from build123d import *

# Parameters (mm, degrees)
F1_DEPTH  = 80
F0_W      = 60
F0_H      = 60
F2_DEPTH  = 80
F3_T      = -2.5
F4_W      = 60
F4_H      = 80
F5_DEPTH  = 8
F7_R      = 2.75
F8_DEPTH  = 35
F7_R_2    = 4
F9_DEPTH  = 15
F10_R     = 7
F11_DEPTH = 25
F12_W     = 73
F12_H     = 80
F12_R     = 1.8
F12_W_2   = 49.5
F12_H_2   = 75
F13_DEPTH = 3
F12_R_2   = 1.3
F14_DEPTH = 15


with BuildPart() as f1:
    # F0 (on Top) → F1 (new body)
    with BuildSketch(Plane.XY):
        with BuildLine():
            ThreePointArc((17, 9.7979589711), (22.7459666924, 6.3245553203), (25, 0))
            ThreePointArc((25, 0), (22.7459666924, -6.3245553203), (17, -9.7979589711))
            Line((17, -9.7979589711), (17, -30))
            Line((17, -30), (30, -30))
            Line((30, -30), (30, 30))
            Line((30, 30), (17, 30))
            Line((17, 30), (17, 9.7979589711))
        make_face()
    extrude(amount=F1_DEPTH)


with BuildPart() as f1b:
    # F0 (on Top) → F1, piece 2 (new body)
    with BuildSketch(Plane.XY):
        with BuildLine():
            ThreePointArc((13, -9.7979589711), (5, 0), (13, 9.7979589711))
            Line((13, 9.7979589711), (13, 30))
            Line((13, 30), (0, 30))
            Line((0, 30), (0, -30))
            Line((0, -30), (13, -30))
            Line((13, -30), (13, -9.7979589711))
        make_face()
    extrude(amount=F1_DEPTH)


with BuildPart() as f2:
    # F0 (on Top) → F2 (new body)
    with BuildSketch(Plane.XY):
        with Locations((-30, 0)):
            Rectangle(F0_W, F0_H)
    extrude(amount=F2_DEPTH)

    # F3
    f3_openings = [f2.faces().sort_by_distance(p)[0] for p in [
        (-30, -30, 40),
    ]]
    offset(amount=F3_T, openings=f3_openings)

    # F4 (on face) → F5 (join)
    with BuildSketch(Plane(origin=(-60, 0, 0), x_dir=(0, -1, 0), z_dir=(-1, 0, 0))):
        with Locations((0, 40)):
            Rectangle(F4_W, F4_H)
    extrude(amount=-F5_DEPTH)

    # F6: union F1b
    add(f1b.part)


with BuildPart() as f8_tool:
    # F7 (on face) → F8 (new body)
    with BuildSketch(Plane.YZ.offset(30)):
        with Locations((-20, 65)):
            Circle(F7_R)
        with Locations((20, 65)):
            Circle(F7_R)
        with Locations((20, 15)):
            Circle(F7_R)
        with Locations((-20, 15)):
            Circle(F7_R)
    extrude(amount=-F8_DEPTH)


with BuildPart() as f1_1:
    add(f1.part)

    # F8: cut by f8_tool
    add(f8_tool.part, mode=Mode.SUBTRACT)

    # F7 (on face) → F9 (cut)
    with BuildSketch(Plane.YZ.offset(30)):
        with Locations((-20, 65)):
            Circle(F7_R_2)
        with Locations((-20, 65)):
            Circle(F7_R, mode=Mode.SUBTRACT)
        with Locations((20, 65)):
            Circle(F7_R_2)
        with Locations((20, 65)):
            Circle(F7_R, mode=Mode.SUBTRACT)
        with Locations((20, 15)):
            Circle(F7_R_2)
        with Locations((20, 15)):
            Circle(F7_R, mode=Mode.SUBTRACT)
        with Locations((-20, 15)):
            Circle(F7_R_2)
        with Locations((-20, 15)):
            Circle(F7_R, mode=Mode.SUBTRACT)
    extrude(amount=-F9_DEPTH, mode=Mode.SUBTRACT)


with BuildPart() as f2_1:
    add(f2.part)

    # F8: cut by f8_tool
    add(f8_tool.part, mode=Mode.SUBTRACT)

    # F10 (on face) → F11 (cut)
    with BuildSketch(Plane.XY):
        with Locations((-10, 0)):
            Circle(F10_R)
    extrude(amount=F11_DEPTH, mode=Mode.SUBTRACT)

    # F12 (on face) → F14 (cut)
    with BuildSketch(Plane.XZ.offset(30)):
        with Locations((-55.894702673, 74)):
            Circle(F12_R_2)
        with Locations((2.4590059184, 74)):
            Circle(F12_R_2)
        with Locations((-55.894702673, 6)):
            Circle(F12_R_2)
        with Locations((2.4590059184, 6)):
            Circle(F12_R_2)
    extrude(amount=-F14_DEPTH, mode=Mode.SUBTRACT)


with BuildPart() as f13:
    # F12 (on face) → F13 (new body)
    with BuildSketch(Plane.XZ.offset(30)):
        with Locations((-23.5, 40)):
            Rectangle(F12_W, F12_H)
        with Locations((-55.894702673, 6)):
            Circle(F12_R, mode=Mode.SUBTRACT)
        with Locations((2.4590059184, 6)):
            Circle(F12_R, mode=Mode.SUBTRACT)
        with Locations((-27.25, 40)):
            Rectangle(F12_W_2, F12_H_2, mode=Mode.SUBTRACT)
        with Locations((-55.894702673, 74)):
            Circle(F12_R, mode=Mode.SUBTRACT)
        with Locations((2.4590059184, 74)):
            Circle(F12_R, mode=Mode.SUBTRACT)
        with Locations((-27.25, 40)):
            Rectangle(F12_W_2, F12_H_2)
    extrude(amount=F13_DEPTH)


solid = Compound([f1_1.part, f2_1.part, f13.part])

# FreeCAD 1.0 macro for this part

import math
import FreeCAD as App
import Part
import Sketcher
from FreeCAD import Vector


def faces_at(feature, points):
    """Names of the faces that lie closest to the given points."""
    faces = feature.Shape.Faces
    near = lambda p: min(range(len(faces)), key=lambda i: faces[i].distToShape(Part.Vertex(*p))[0])
    return sorted({f"Face{near(p) + 1}" for p in points})

doc = App.newDocument("Part")
body = doc.addObject("PartDesign::Body", "Body")

# Sketch on XY plane
sketch1 = body.newObject("Sketcher::SketchObject", "Sketch")
sketch1.AttachmentSupport = (doc.getObject("XY_Plane"), [""])
sketch1.MapMode = "FlatFace"
sketch1.addGeometry(Part.ArcOfCircle(Part.Circle(Vector(15, 0, 0), Vector(0, 0, 1), 10), math.radians(0), math.radians(78.463041)), False)
sketch1.addGeometry(Part.ArcOfCircle(Part.Circle(Vector(15, 0, 0), Vector(0, 0, 1), 10), math.radians(-78.463041), math.radians(0)), False)
sketch1.addGeometry(Part.LineSegment(Vector(17, -9.797959, 0), Vector(17, -30, 0)), False)
sketch1.addGeometry(Part.LineSegment(Vector(17, -30, 0), Vector(30, -30, 0)), False)
sketch1.addGeometry(Part.LineSegment(Vector(30, -30, 0), Vector(30, 30, 0)), False)
sketch1.addGeometry(Part.LineSegment(Vector(30, 30, 0), Vector(17, 30, 0)), False)
sketch1.addGeometry(Part.LineSegment(Vector(17, 30, 0), Vector(17, 9.797959, 0)), False)
sketch1.addConstraint(Sketcher.Constraint("Tangent", 0, 1, 1, 2))
sketch1.addConstraint(Sketcher.Constraint("Coincident", 1, 1, 2, 1))
sketch1.addConstraint(Sketcher.Constraint("Coincident", 2, 2, 3, 1))
sketch1.addConstraint(Sketcher.Constraint("Coincident", 3, 2, 4, 1))
sketch1.addConstraint(Sketcher.Constraint("Coincident", 4, 2, 5, 1))
sketch1.addConstraint(Sketcher.Constraint("Coincident", 5, 2, 6, 1))
sketch1.addConstraint(Sketcher.Constraint("Coincident", 6, 2, 0, 2))
sketch1.addConstraint(Sketcher.Constraint("Vertical", 2))
sketch1.addConstraint(Sketcher.Constraint("Horizontal", 3))
sketch1.addConstraint(Sketcher.Constraint("Vertical", 4))
sketch1.addConstraint(Sketcher.Constraint("Horizontal", 5))
sketch1.addConstraint(Sketcher.Constraint("Vertical", 6))
sketch1.addConstraint(Sketcher.Constraint("Equal", 0, 1))
sketch1.addConstraint(Sketcher.Constraint("Symmetric", 2, 2, 5, 2, -1))
sketch1.addConstraint(Sketcher.Constraint("PointOnObject", 0, 3, -1))
sketch1.addConstraint(Sketcher.Constraint("PointOnObject", 0, 1, -1))
sketch1.addConstraint(Sketcher.Constraint("Radius", 0, 10.0))
sketch1.addConstraint(Sketcher.Constraint("DistanceX", 3, 1, 3, 2, 13.0))
sketch1.addConstraint(Sketcher.Constraint("DistanceY", 4, 1, 4, 2, 60.0))
sketch1.addConstraint(Sketcher.Constraint("DistanceX", -1, 1, 0, 3, 15.0))
sketch1.addConstraint(Sketcher.Constraint("DistanceX", -1, 1, 1, 1, 17.0))
pad1 = body.newObject("PartDesign::Pad", "Pad")
pad1.Profile = sketch1
pad1.Length = 80
body2 = doc.addObject("PartDesign::Body", "Body001")

# Sketch on XY plane
sketch2 = body2.newObject("Sketcher::SketchObject", "Sketch001")
sketch2.AttachmentSupport = (doc.getObject("XY_Plane001"), [""])
sketch2.MapMode = "FlatFace"
sketch2.addGeometry(Part.ArcOfCircle(Part.Circle(Vector(15, 0, 0), Vector(0, 0, 1), 10), math.radians(101.536959), math.radians(258.463041)), False)
sketch2.addGeometry(Part.LineSegment(Vector(13, 9.797959, 0), Vector(13, 30, 0)), False)
sketch2.addGeometry(Part.LineSegment(Vector(13, 30, 0), Vector(0, 30, 0)), False)
sketch2.addGeometry(Part.LineSegment(Vector(0, 30, 0), Vector(0, -30, 0)), False)
sketch2.addGeometry(Part.LineSegment(Vector(0, -30, 0), Vector(13, -30, 0)), False)
sketch2.addGeometry(Part.LineSegment(Vector(13, -30, 0), Vector(13, -9.797959, 0)), False)
sketch2.addConstraint(Sketcher.Constraint("Coincident", 0, 1, 1, 1))
sketch2.addConstraint(Sketcher.Constraint("Coincident", 1, 2, 2, 1))
sketch2.addConstraint(Sketcher.Constraint("Coincident", 2, 2, 3, 1))
sketch2.addConstraint(Sketcher.Constraint("Coincident", 3, 2, 4, 1))
sketch2.addConstraint(Sketcher.Constraint("Coincident", 4, 2, 5, 1))
sketch2.addConstraint(Sketcher.Constraint("Coincident", 5, 2, 0, 2))
sketch2.addConstraint(Sketcher.Constraint("Vertical", 1))
sketch2.addConstraint(Sketcher.Constraint("Horizontal", 2))
sketch2.addConstraint(Sketcher.Constraint("Vertical", 3))
sketch2.addConstraint(Sketcher.Constraint("Horizontal", 4))
sketch2.addConstraint(Sketcher.Constraint("Vertical", 5))
sketch2.addConstraint(Sketcher.Constraint("Symmetric", 2, 2, 3, 2, -1, 1))
sketch2.addConstraint(Sketcher.Constraint("Symmetric", 0, 1, 5, 2, -1))
sketch2.addConstraint(Sketcher.Constraint("Radius", 0, 10.0))
sketch2.addConstraint(Sketcher.Constraint("DistanceX", 2, 2, 2, 1, 13.0))
sketch2.addConstraint(Sketcher.Constraint("DistanceY", 3, 2, 3, 1, 60.0))
sketch2.addConstraint(Sketcher.Constraint("DistanceX", -1, 1, 0, 3, 15.0))
pad2 = body2.newObject("PartDesign::Pad", "Pad001")
pad2.Profile = sketch2
pad2.Length = 80
body3 = doc.addObject("PartDesign::Body", "Body002")

# Sketch on XY plane
sketch3 = body3.newObject("Sketcher::SketchObject", "Sketch002")
sketch3.AttachmentSupport = (doc.getObject("XY_Plane002"), [""])
sketch3.MapMode = "FlatFace"
sketch3.addGeometry(Part.LineSegment(Vector(-60, 30, 0), Vector(-60, -30, 0)), False)
sketch3.addGeometry(Part.LineSegment(Vector(-60, -30, 0), Vector(0, -30, 0)), False)
sketch3.addGeometry(Part.LineSegment(Vector(0, -30, 0), Vector(0, 30, 0)), False)
sketch3.addGeometry(Part.LineSegment(Vector(0, 30, 0), Vector(-60, 30, 0)), False)
sketch3.addConstraint(Sketcher.Constraint("Coincident", 0, 2, 1, 1))
sketch3.addConstraint(Sketcher.Constraint("Coincident", 1, 2, 2, 1))
sketch3.addConstraint(Sketcher.Constraint("Coincident", 2, 2, 3, 1))
sketch3.addConstraint(Sketcher.Constraint("Coincident", 3, 2, 0, 1))
sketch3.addConstraint(Sketcher.Constraint("Vertical", 0))
sketch3.addConstraint(Sketcher.Constraint("Horizontal", 1))
sketch3.addConstraint(Sketcher.Constraint("Vertical", 2))
sketch3.addConstraint(Sketcher.Constraint("Horizontal", 3))
sketch3.addConstraint(Sketcher.Constraint("Symmetric", 1, 2, 2, 2, -1, 1))
sketch3.addConstraint(Sketcher.Constraint("Equal", 3, 0))
sketch3.addConstraint(Sketcher.Constraint("DistanceX", 1, 1, 1, 2, 60.0))
pad3 = body3.newObject("PartDesign::Pad", "Pad002")
pad3.Profile = sketch3
pad3.Length = 80
doc.recompute()

thickness = body3.newObject("PartDesign::Thickness", "Thickness")
thickness.Base = (pad3, faces_at(pad3, [(-30, -30, 40)]))
thickness.Value = 2.5
thickness.Reversed = True
thickness.Join = "Arc"

# Sketch on YZ plane
sketch4 = body3.newObject("Sketcher::SketchObject", "Sketch003")
sketch4.AttachmentSupport = (doc.getObject("YZ_Plane002"), [""])
sketch4.MapMode = "FlatFace"
sketch4.AttachmentOffset = App.Placement(Vector(0, 0, -60), App.Rotation())
sketch4.addGeometry(Part.LineSegment(Vector(30, 80, 0), Vector(30, 0, 0)), False)
sketch4.addGeometry(Part.LineSegment(Vector(30, 0, 0), Vector(-30, 0, 0)), False)
sketch4.addGeometry(Part.LineSegment(Vector(-30, 0, 0), Vector(-30, 80, 0)), False)
sketch4.addGeometry(Part.LineSegment(Vector(-30, 80, 0), Vector(30, 80, 0)), False)
sketch4.addConstraint(Sketcher.Constraint("Coincident", 0, 2, 1, 1))
sketch4.addConstraint(Sketcher.Constraint("Coincident", 1, 2, 2, 1))
sketch4.addConstraint(Sketcher.Constraint("Coincident", 2, 2, 3, 1))
sketch4.addConstraint(Sketcher.Constraint("Coincident", 3, 2, 0, 1))
sketch4.addConstraint(Sketcher.Constraint("Vertical", 0))
sketch4.addConstraint(Sketcher.Constraint("Horizontal", 1))
sketch4.addConstraint(Sketcher.Constraint("Vertical", 2))
sketch4.addConstraint(Sketcher.Constraint("Horizontal", 3))
sketch4.addConstraint(Sketcher.Constraint("Symmetric", 0, 2, 1, 2, -1, 1))
sketch4.addConstraint(Sketcher.Constraint("DistanceX", 1, 2, 1, 1, 60.0))
sketch4.addConstraint(Sketcher.Constraint("DistanceY", 0, 2, 0, 1, 80.0))
pad4 = body3.newObject("PartDesign::Pad", "Pad003")
pad4.Profile = sketch4
pad4.Length = 8
doc.recompute()

boolean = body3.newObject("PartDesign::Boolean", "Boolean")
boolean.Type = "Fuse"
boolean.addObjects([body2])
body4 = doc.addObject("PartDesign::Body", "Body003")
body4.AllowCompound = True

# Sketch on YZ plane
sketch5 = body4.newObject("Sketcher::SketchObject", "Sketch004")
sketch5.AttachmentSupport = (doc.getObject("YZ_Plane003"), [""])
sketch5.MapMode = "FlatFace"
sketch5.AttachmentOffset = App.Placement(Vector(0, 0, 30), App.Rotation())
sketch5.addGeometry(Part.Circle(Vector(-20, 65, 0), Vector(0, 0, 1), 2.75), False)
sketch5.addGeometry(Part.Circle(Vector(20, 65, 0), Vector(0, 0, 1), 2.75), False)
sketch5.addGeometry(Part.Circle(Vector(20, 15, 0), Vector(0, 0, 1), 2.75), False)
sketch5.addGeometry(Part.Circle(Vector(-20, 15, 0), Vector(0, 0, 1), 2.75), False)
sketch5.addConstraint(Sketcher.Constraint("Equal", 0, 1))
sketch5.addConstraint(Sketcher.Constraint("Equal", 1, 2))
sketch5.addConstraint(Sketcher.Constraint("Equal", 2, 3))
sketch5.addConstraint(Sketcher.Constraint("Symmetric", 0, 3, 1, 3, -2))
sketch5.addConstraint(Sketcher.Constraint("Symmetric", 2, 3, 3, 3, -2))
sketch5.addConstraint(Sketcher.Constraint("Vertical", 1, 3, 2, 3))
sketch5.addConstraint(Sketcher.Constraint("Diameter", 0, 5.5))
sketch5.addConstraint(Sketcher.Constraint("DistanceX", 0, 3, -1, 1, 20.0))
sketch5.addConstraint(Sketcher.Constraint("DistanceY", -1, 1, 0, 3, 65.0))
sketch5.addConstraint(Sketcher.Constraint("DistanceY", -1, 1, 2, 3, 15.0))
pad5 = body4.newObject("PartDesign::Pad", "Pad004")
pad5.Profile = sketch5
pad5.Length = 35
pad5.Reversed = True
doc.recompute()

body5 = doc.addObject("PartDesign::Body", "Body004")
body5.BaseFeature = body4
boolean2 = body.newObject("PartDesign::Boolean", "Boolean001")
boolean2.Type = "Cut"
boolean2.addObjects([body5])
doc.recompute()

# Sketch on YZ plane
sketch6 = body.newObject("Sketcher::SketchObject", "Sketch005")
sketch6.AttachmentSupport = (doc.getObject("YZ_Plane"), [""])
sketch6.MapMode = "FlatFace"
sketch6.AttachmentOffset = App.Placement(Vector(0, 0, 30), App.Rotation())
sketch6.addGeometry(Part.Circle(Vector(-20, 65, 0), Vector(0, 0, 1), 4), False)
sketch6.addGeometry(Part.Circle(Vector(-20, 65, 0), Vector(0, 0, 1), 2.75), False)
sketch6.addGeometry(Part.Circle(Vector(20, 65, 0), Vector(0, 0, 1), 4), False)
sketch6.addGeometry(Part.Circle(Vector(20, 65, 0), Vector(0, 0, 1), 2.75), False)
sketch6.addGeometry(Part.Circle(Vector(20, 15, 0), Vector(0, 0, 1), 4), False)
sketch6.addGeometry(Part.Circle(Vector(20, 15, 0), Vector(0, 0, 1), 2.75), False)
sketch6.addGeometry(Part.Circle(Vector(-20, 15, 0), Vector(0, 0, 1), 4), False)
sketch6.addGeometry(Part.Circle(Vector(-20, 15, 0), Vector(0, 0, 1), 2.75), False)
sketch6.addConstraint(Sketcher.Constraint("Coincident", 1, 3, 0, 3))
sketch6.addConstraint(Sketcher.Constraint("Coincident", 3, 3, 2, 3))
sketch6.addConstraint(Sketcher.Constraint("Coincident", 5, 3, 4, 3))
sketch6.addConstraint(Sketcher.Constraint("Coincident", 7, 3, 6, 3))
sketch6.addConstraint(Sketcher.Constraint("Equal", 0, 2))
sketch6.addConstraint(Sketcher.Constraint("Equal", 1, 3))
sketch6.addConstraint(Sketcher.Constraint("Equal", 2, 4))
sketch6.addConstraint(Sketcher.Constraint("Equal", 3, 5))
sketch6.addConstraint(Sketcher.Constraint("Equal", 4, 6))
sketch6.addConstraint(Sketcher.Constraint("Equal", 5, 7))
sketch6.addConstraint(Sketcher.Constraint("Symmetric", 0, 3, 2, 3, -2))
sketch6.addConstraint(Sketcher.Constraint("Symmetric", 4, 3, 6, 3, -2))
sketch6.addConstraint(Sketcher.Constraint("Vertical", 3, 3, 4, 3))
sketch6.addConstraint(Sketcher.Constraint("Diameter", 0, 8.0))
sketch6.addConstraint(Sketcher.Constraint("Diameter", 1, 5.5))
sketch6.addConstraint(Sketcher.Constraint("DistanceX", 0, 3, -1, 1, 20.0))
sketch6.addConstraint(Sketcher.Constraint("DistanceY", -1, 1, 0, 3, 65.0))
sketch6.addConstraint(Sketcher.Constraint("DistanceY", -1, 1, 4, 3, 15.0))
pocket1 = body.newObject("PartDesign::Pocket", "Pocket")
pocket1.Profile = sketch6
pocket1.Length = 15
doc.recompute()

boolean3 = body3.newObject("PartDesign::Boolean", "Boolean002")
boolean3.Type = "Cut"
boolean3.addObjects([body4])

# Sketch on XY plane
sketch7 = body3.newObject("Sketcher::SketchObject", "Sketch006")
sketch7.AttachmentSupport = (doc.getObject("XY_Plane002"), [""])
sketch7.MapMode = "FlatFace"
sketch7.addGeometry(Part.Circle(Vector(-10, 0, 0), Vector(0, 0, 1), 7), False)
sketch7.addConstraint(Sketcher.Constraint("PointOnObject", 0, 3, -1))
sketch7.addConstraint(Sketcher.Constraint("Diameter", 0, 14.0))
sketch7.addConstraint(Sketcher.Constraint("DistanceX", 0, 3, -1, 1, 10.0))
pocket2 = body3.newObject("PartDesign::Pocket", "Pocket001")
pocket2.Profile = sketch7
pocket2.Length = 25
pocket2.Reversed = True

# Sketch on XZ plane
sketch8 = body3.newObject("Sketcher::SketchObject", "Sketch007")
sketch8.AttachmentSupport = (doc.getObject("XZ_Plane002"), [""])
sketch8.MapMode = "FlatFace"
sketch8.AttachmentOffset = App.Placement(Vector(0, 0, 30), App.Rotation())
sketch8.addGeometry(Part.Circle(Vector(-55.894703, 74, 0), Vector(0, 0, 1), 1.3), False)
sketch8.addGeometry(Part.Circle(Vector(2.459006, 74, 0), Vector(0, 0, 1), 1.3), False)
sketch8.addGeometry(Part.Circle(Vector(-55.894703, 6, 0), Vector(0, 0, 1), 1.3), False)
sketch8.addGeometry(Part.Circle(Vector(2.459006, 6, 0), Vector(0, 0, 1), 1.3), False)
sketch8.addConstraint(Sketcher.Constraint("Equal", 0, 1))
sketch8.addConstraint(Sketcher.Constraint("Equal", 1, 2))
sketch8.addConstraint(Sketcher.Constraint("Equal", 2, 3))
sketch8.addConstraint(Sketcher.Constraint("Horizontal", 0, 3, 1, 3))
sketch8.addConstraint(Sketcher.Constraint("Horizontal", 2, 3, 3, 3))
sketch8.addConstraint(Sketcher.Constraint("Vertical", 0, 3, 2, 3))
sketch8.addConstraint(Sketcher.Constraint("Vertical", 1, 3, 3, 3))
sketch8.addConstraint(Sketcher.Constraint("Diameter", 0, 2.6))
sketch8.addConstraint(Sketcher.Constraint("DistanceY", -1, 1, 0, 3, 74.0))
sketch8.addConstraint(Sketcher.Constraint("DistanceY", -1, 1, 2, 3, 6.0))
sketch8.addConstraint(Sketcher.Constraint("DistanceX", 0, 3, 1, 3, 58.353709))
sketch8.addConstraint(Sketcher.Constraint("DistanceX", 0, 3, -1, 1, 55.894703))
pocket3 = body3.newObject("PartDesign::Pocket", "Pocket002")
pocket3.Profile = sketch8
pocket3.Length = 15
body6 = doc.addObject("PartDesign::Body", "Body005")

# Sketch on XZ plane
sketch9 = body6.newObject("Sketcher::SketchObject", "Sketch008")
sketch9.AttachmentSupport = (doc.getObject("XZ_Plane005"), [""])
sketch9.MapMode = "FlatFace"
sketch9.AttachmentOffset = App.Placement(Vector(0, 0, 30), App.Rotation())
sketch9.addGeometry(Part.LineSegment(Vector(-60, 80, 0), Vector(-60, 0, 0)), False)
sketch9.addGeometry(Part.LineSegment(Vector(-60, 0, 0), Vector(13, 0, 0)), False)
sketch9.addGeometry(Part.LineSegment(Vector(13, 0, 0), Vector(13, 80, 0)), False)
sketch9.addGeometry(Part.LineSegment(Vector(13, 80, 0), Vector(-60, 80, 0)), False)
sketch9.addGeometry(Part.Circle(Vector(-55.894703, 6, 0), Vector(0, 0, 1), 1.8), False)
sketch9.addGeometry(Part.Circle(Vector(2.459006, 6, 0), Vector(0, 0, 1), 1.8), False)
sketch9.addGeometry(Part.Circle(Vector(-55.894703, 74, 0), Vector(0, 0, 1), 1.8), False)
sketch9.addGeometry(Part.Circle(Vector(2.459006, 74, 0), Vector(0, 0, 1), 1.8), False)
sketch9.addConstraint(Sketcher.Constraint("Coincident", 0, 2, 1, 1))
sketch9.addConstraint(Sketcher.Constraint("Coincident", 1, 2, 2, 1))
sketch9.addConstraint(Sketcher.Constraint("Coincident", 2, 2, 3, 1))
sketch9.addConstraint(Sketcher.Constraint("Coincident", 3, 2, 0, 1))
sketch9.addConstraint(Sketcher.Constraint("Vertical", 0))
sketch9.addConstraint(Sketcher.Constraint("Horizontal", 1))
sketch9.addConstraint(Sketcher.Constraint("Vertical", 2))
sketch9.addConstraint(Sketcher.Constraint("Horizontal", 3))
sketch9.addConstraint(Sketcher.Constraint("Equal", 4, 5))
sketch9.addConstraint(Sketcher.Constraint("Equal", 5, 6))
sketch9.addConstraint(Sketcher.Constraint("Equal", 6, 7))
sketch9.addConstraint(Sketcher.Constraint("PointOnObject", 0, 2, -1))
sketch9.addConstraint(Sketcher.Constraint("Horizontal", 4, 3, 5, 3))
sketch9.addConstraint(Sketcher.Constraint("Horizontal", 6, 3, 7, 3))
sketch9.addConstraint(Sketcher.Constraint("Vertical", 4, 3, 6, 3))
sketch9.addConstraint(Sketcher.Constraint("Vertical", 5, 3, 7, 3))
sketch9.addConstraint(Sketcher.Constraint("Diameter", 4, 3.6))
sketch9.addConstraint(Sketcher.Constraint("DistanceX", 1, 1, 1, 2, 73.0))
sketch9.addConstraint(Sketcher.Constraint("DistanceY", 0, 2, 0, 1, 80.0))
sketch9.addConstraint(Sketcher.Constraint("DistanceY", -1, 1, 4, 3, 6.0))
sketch9.addConstraint(Sketcher.Constraint("DistanceY", -1, 1, 6, 3, 74.0))
sketch9.addConstraint(Sketcher.Constraint("DistanceX", 0, 2, -1, 1, 60.0))
sketch9.addConstraint(Sketcher.Constraint("DistanceX", 4, 3, 5, 3, 58.353709))
sketch9.addConstraint(Sketcher.Constraint("DistanceX", 4, 3, -1, 1, 55.894703))
pad6 = body6.newObject("PartDesign::Pad", "Pad005")
pad6.Profile = sketch9
pad6.Length = 3

doc.recompute()
